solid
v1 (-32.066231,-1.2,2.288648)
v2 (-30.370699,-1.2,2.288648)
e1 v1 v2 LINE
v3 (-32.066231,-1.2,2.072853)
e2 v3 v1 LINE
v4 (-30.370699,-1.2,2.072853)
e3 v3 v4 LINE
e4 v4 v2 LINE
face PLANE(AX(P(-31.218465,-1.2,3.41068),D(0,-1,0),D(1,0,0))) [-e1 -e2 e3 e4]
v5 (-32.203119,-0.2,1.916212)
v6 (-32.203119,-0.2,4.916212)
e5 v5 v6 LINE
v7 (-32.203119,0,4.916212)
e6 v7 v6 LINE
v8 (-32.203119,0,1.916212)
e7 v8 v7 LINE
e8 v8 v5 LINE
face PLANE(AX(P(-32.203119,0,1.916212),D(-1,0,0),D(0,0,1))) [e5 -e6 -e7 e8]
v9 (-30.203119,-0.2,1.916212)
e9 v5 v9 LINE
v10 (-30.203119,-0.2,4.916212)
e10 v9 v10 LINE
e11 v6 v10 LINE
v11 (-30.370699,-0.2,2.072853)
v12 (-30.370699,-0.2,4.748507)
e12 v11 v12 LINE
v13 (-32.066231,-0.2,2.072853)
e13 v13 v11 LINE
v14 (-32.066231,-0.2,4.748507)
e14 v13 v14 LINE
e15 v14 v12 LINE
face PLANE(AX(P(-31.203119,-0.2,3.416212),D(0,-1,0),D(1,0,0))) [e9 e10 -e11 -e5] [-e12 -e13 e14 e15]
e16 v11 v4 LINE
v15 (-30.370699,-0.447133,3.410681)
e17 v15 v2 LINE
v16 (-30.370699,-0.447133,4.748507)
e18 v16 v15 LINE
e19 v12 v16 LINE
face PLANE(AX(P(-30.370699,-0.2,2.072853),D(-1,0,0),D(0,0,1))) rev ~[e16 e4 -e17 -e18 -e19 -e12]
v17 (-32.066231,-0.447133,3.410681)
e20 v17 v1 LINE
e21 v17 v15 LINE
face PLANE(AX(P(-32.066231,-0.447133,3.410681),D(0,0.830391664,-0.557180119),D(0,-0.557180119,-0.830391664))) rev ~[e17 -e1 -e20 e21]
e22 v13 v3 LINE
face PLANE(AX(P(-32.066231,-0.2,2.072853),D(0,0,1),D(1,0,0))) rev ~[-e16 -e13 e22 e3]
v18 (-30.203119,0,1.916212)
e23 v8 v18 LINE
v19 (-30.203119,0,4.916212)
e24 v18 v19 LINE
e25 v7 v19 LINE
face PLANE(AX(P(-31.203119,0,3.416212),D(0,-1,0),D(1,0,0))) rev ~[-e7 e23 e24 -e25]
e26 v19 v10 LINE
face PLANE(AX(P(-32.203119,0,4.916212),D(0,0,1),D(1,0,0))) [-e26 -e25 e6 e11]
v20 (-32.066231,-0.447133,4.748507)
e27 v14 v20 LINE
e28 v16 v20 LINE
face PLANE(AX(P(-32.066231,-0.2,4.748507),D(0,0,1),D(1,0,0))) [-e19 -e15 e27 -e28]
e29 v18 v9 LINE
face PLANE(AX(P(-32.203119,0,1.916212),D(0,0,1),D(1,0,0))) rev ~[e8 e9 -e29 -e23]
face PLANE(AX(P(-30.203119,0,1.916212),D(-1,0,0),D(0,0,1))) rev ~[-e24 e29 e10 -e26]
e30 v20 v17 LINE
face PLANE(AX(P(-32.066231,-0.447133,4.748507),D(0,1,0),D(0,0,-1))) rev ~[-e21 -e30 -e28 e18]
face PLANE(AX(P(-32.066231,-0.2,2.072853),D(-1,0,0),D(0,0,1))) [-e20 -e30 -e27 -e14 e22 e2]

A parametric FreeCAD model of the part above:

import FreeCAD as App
import Part
import Sketcher

V = App.Vector

doc = App.newDocument("Part")
body = doc.addObject("PartDesign::Body", "Body")

sketch1 = body.newObject("Sketcher::SketchObject", "Sketch")
sketch1.AttachmentSupport = (doc.getObject("XZ_Plane"), [""])
sketch1.MapMode = "FlatFace"
sketch1.addGeometry([
    Part.LineSegment(V(-32.2, 4.9, 0), V(-32.2, 1.9, 0)),
    Part.LineSegment(V(-32.2, 1.9, 0), V(-30.2, 1.9, 0)),
    Part.LineSegment(V(-30.2, 1.9, 0), V(-30.2, 4.9, 0)),
    Part.LineSegment(V(-30.2, 4.9, 0), V(-32.2, 4.9, 0)),
], False)
sketch1.addConstraint([
    Sketcher.Constraint("Coincident", 0, 2, 1, 1),
    Sketcher.Constraint("Coincident", 1, 2, 2, 1),
    Sketcher.Constraint("Coincident", 2, 2, 3, 1),
    Sketcher.Constraint("Coincident", 3, 2, 0, 1),
    Sketcher.Constraint("Vertical", 0),
    Sketcher.Constraint("Horizontal", 1),
    Sketcher.Constraint("Vertical", 2),
    Sketcher.Constraint("Horizontal", 3),
    Sketcher.Constraint("DistanceX", 1, 1, 1, 2, 2.0),
    Sketcher.Constraint("DistanceY", 0, 2, 0, 1, 3.0),
    Sketcher.Constraint("DistanceX", 0, 2, -1, 1, 32.203119),
    Sketcher.Constraint("DistanceY", -1, 1, 2, 2, 4.916212),
])
pad1 = body.newObject("PartDesign::Pad", "Pad")
pad1.Profile = sketch1
pad1.Length = 0.2

sketch2 = body.newObject("Sketcher::SketchObject", "Sketch001")
sketch2.AttachmentSupport = (doc.getObject("XZ_Plane"), [""])
sketch2.MapMode = "FlatFace"
sketch2.AttachmentOffset = App.Placement(V(0, 0, 0.2), App.Rotation())
sketch2.addGeometry([
    Part.LineSegment(V(-32.1, 4.7, 0), V(-32.1, 2.1, 0)),
    Part.LineSegment(V(-32.1, 2.1, 0), V(-30.4, 2.1, 0)),
    Part.LineSegment(V(-30.4, 2.1, 0), V(-30.4, 4.7, 0)),
    Part.LineSegment(V(-30.4, 4.7, 0), V(-32.1, 4.7, 0)),
], False)
sketch2.addConstraint([
    Sketcher.Constraint("Coincident", 0, 2, 1, 1),
    Sketcher.Constraint("Coincident", 1, 2, 2, 1),
    Sketcher.Constraint("Coincident", 2, 2, 3, 1),
    Sketcher.Constraint("Coincident", 3, 2, 0, 1),
    Sketcher.Constraint("Vertical", 0),
    Sketcher.Constraint("Horizontal", 1),
    Sketcher.Constraint("Vertical", 2),
    Sketcher.Constraint("Horizontal", 3),
    Sketcher.Constraint("DistanceX", 1, 2, -1, 1, 30.370699),
    Sketcher.Constraint("DistanceX", 1, 1, 1, 2, 1.695532),
    Sketcher.Constraint("DistanceY", 0, 2, 0, 1, 2.675653),
    Sketcher.Constraint("DistanceY", -1, 1, 0, 2, 2.072853),
])
pad2 = body.newObject("PartDesign::Pad", "Pad001")
pad2.Profile = sketch2
pad2.Length = 1

sketch3 = body.newObject("Sketcher::SketchObject", "Sketch002")
sketch3.AttachmentSupport = (doc.getObject("YZ_Plane"), [""])
sketch3.MapMode = "FlatFace"
sketch3.AttachmentOffset = App.Placement(V(0, 0, -32.066231), App.Rotation())
sketch3.addGeometry([
    Part.LineSegment(V(-0.4, 4.7, 0), V(-0.4, 3.4, 0)),
    Part.LineSegment(V(-0.4, 3.4, 0), V(-1.2, 2.3, 0)),
    Part.LineSegment(V(-1.2, 2.3, 0), V(-1.2, 4.7, 0)),
    Part.LineSegment(V(-1.2, 4.7, 0), V(-0.4, 4.7, 0)),
], False)
sketch3.addConstraint([
    Sketcher.Constraint("Coincident", 0, 2, 1, 1),
    Sketcher.Constraint("Coincident", 1, 2, 2, 1),
    Sketcher.Constraint("Coincident", 2, 2, 3, 1),
    Sketcher.Constraint("Coincident", 3, 2, 0, 1),
    Sketcher.Constraint("Vertical", 0),
    Sketcher.Constraint("Vertical", 2),
    Sketcher.Constraint("Horizontal", 3),
    Sketcher.Constraint("DistanceX", 1, 2, -1, 1, 1.2),
    Sketcher.Constraint("DistanceY", 2, 1, 2, 2, 2.459859),
    Sketcher.Constraint("Distance", 1, 1.351209),
    Sketcher.Constraint("DistanceX", 3, 1, 3, 2, 0.752867),
    Sketcher.Constraint("DistanceY", -1, 1, 0, 2, 3.410681),
])
pocket1 = body.newObject("PartDesign::Pocket", "Pocket")
pocket1.Profile = sketch3
pocket1.Length = 5
pocket1.Reversed = True

doc.recompute()
